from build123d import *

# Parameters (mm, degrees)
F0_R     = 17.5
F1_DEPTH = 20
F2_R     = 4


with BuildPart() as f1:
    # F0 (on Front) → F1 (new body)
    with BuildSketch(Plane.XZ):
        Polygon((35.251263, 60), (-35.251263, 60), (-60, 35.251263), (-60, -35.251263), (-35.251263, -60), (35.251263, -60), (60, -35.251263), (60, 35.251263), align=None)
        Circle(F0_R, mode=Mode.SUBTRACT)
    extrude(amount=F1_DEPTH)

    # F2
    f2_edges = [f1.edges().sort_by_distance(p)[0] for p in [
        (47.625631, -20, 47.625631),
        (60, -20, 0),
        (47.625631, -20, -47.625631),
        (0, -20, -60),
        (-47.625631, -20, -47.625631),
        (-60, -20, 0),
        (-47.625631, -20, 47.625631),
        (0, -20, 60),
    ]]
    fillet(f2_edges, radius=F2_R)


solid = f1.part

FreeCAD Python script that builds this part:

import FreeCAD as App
import Part
import Sketcher

V = App.Vector


def edges_at(feature, points):
    """Names of the edges that pass closest to the given points."""
    edges = feature.Shape.Edges
    near = lambda p: min(range(len(edges)), key=lambda i: edges[i].distToShape(Part.Vertex(*p))[0])
    return sorted({f"Edge{near(p) + 1}" for p in points})

doc = App.newDocument("Part")
body = doc.addObject("PartDesign::Body", "Body")

# Sketch on XZ plane
sketch1 = doc.addObject("Sketcher::SketchObject", "Sketch")
body.addObject(sketch1)
sketch1.AttachmentSupport = (doc.XZ_Plane, [""])
sketch1.MapMode = "FlatFace"
sketch1.addGeometry([
    Part.LineSegment(V(35, 60, 0), V(-35, 60, 0)),  # 0
    Part.LineSegment(V(-35, 60, 0), V(-60, 35, 0)),  # 1
    Part.LineSegment(V(-60, 35, 0), V(-60, -35, 0)),  # 2
    Part.LineSegment(V(-60, -35, 0), V(-35, -60, 0)),  # 3
    Part.LineSegment(V(-35, -60, 0), V(35, -60, 0)),  # 4
    Part.LineSegment(V(35, -60, 0), V(60, -35, 0)),  # 5
    Part.LineSegment(V(60, -35, 0), V(60, 35, 0)),  # 6
    Part.LineSegment(V(60, 35, 0), V(35, 60, 0)),  # 7
    Part.Circle(V(0, 0, 0), V(0, 0, 1), 18),  # 8
], False)
sketch1.addConstraint([
    Sketcher.Constraint("Coincident", 0, 2, 1, 1),
    Sketcher.Constraint("Coincident", 1, 2, 2, 1),
    Sketcher.Constraint("Coincident", 2, 2, 3, 1),
    Sketcher.Constraint("Coincident", 3, 2, 4, 1),
    Sketcher.Constraint("Coincident", 4, 2, 5, 1),
    Sketcher.Constraint("Coincident", 5, 2, 6, 1),
    Sketcher.Constraint("Coincident", 6, 2, 7, 1),
    Sketcher.Constraint("Coincident", 7, 2, 0, 1),
    Sketcher.Constraint("Horizontal", 0),
    Sketcher.Constraint("Vertical", 2),
    Sketcher.Constraint("Horizontal", 4),
    Sketcher.Constraint("Vertical", 6),
    Sketcher.Constraint("Coincident", 8, 3, -1, 1),
    Sketcher.Constraint("Symmetric", 0, 2, 4, 2, -1, 1),
    Sketcher.Constraint("Symmetric", 1, 2, 5, 2, -1, 1),
    Sketcher.Constraint("Perpendicular", 1, 3),
    Sketcher.Constraint("Perpendicular", 5, 7),
    Sketcher.Constraint("Horizontal", 2, 2, 5, 2),
    Sketcher.Constraint("Horizontal", 1, 2, 6, 2),
    Sketcher.Constraint("Vertical", 0, 2, 3, 2),
    Sketcher.Constraint("Equal", 4, 2),
    Sketcher.Constraint("Diameter", 8, 35.0),
    Sketcher.Constraint("Distance", 1, 35.0),
    Sketcher.Constraint("DistanceY", -1, 1, 0, 2, 60.0),
])
pad1 = doc.addObject("PartDesign::Pad", "Pad")
body.addObject(pad1)
pad1.Profile = sketch1
pad1.Length = 20
doc.recompute()

fillet = doc.addObject("PartDesign::Fillet", "Fillet")
body.addObject(fillet)
fillet.Base = (pad1, edges_at(pad1, [
    (47.626, -20, 47.626),
    (60, -20, 0),
    (47.626, -20, -47.626),
    (0, -20, -60),
    (-47.626, -20, -47.626),
    (-60, -20, 0),
    (-47.626, -20, 47.626),
    (0, -20, 60),
]))
fillet.Radius = 4

doc.recompute()
